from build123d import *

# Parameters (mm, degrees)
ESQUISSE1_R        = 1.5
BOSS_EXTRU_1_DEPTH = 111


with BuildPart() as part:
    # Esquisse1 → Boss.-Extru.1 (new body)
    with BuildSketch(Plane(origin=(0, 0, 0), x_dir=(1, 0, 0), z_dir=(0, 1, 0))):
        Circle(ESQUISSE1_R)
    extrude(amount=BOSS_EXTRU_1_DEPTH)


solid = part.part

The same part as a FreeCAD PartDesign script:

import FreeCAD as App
import Part
import Sketcher

V = App.Vector

doc = App.newDocument("Part")
params = doc.addObject("Spreadsheet::Sheet", "Params")
for row, (alias, value) in enumerate([
    ("sketch1_diameter", "3 mm"),
    ("pad1_length", "111 mm"),
], start=1):
    params.set(f"A{row}", alias)
    params.set(f"B{row}", "=" + value)
    params.setAlias(f"B{row}", alias)

body = doc.addObject("PartDesign::Body", "Body")

sketch1 = body.newObject("Sketcher::SketchObject", "Sketch")
sketch1.AttachmentSupport = (doc.getObject("XZ_Plane"), [""])
sketch1.MapMode = "FlatFace"
sketch1.addGeometry(Part.Circle(V(0, 0, 0), V(0, 0, 1), 1.5), False)
sketch1.addConstraint([
    Sketcher.Constraint("Coincident", 0, 3, -1, 1),
    Sketcher.Constraint("Diameter", 0, 3.0),
])
sketch1.setExpression("Constraints[1]", "Params.sketch1_diameter")
pad1 = body.newObject("PartDesign::Pad", "Pad")
pad1.Profile = sketch1
pad1.setExpression("Length", "Params.pad1_length")
pad1.Reversed = True

doc.recompute()
